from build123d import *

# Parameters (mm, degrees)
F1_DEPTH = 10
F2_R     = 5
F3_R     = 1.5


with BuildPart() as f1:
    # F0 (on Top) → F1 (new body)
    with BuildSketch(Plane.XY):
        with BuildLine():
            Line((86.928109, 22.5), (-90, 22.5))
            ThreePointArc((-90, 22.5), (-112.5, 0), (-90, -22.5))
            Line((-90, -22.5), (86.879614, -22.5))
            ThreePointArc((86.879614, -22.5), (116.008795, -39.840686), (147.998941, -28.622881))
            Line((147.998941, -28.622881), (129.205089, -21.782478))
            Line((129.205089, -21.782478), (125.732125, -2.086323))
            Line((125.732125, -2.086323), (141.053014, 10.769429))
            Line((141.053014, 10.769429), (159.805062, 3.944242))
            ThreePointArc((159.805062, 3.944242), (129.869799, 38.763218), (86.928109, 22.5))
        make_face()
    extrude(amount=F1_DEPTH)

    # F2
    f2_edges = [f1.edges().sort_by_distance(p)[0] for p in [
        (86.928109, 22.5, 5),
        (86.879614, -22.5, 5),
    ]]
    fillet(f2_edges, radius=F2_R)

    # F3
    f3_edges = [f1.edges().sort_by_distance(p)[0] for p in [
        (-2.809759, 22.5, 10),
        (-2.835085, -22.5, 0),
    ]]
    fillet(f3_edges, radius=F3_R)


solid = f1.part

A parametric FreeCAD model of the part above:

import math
import FreeCAD as App
import Part
import Sketcher
from FreeCAD import Vector
Q = App.Units.Quantity


def edges_at(feature, points):
    """Names of the edges that pass closest to the given points."""
    edges = feature.Shape.Edges
    near = lambda p: min(range(len(edges)), key=lambda i: edges[i].distToShape(Part.Vertex(*p))[0])
    return sorted({f"Edge{near(p) + 1}" for p in points})

doc = App.newDocument("Part")
body = doc.addObject("PartDesign::Body", "Body")

# Sketch on XY plane
sketch1 = body.newObject("Sketcher::SketchObject", "Sketch")
sketch1.AttachmentSupport = (doc.getObject("XY_Plane"), [""])
sketch1.MapMode = "FlatFace"
sketch1.addGeometry([
    Part.LineSegment(Vector(86.928109, 22.5, 0), Vector(-90, 22.5, 0)),  # 0
    Part.ArcOfCircle(Part.Circle(Vector(-90, 0, 0), Vector(0, 0, 1), 22.5), math.radians(90), math.radians(270)),  # 1
    Part.LineSegment(Vector(-90, -22.5, 0), Vector(86.879614, -22.5, 0)),  # 2
    Part.ArcOfCircle(Part.Circle(Vector(120, 0, 0), Vector(0, 0, 1), 40.040105), math.radians(-145.810168), math.radians(-45.631342)),  # 3
    Part.LineSegment(Vector(147.998941, -28.622881, 0), Vector(129.205089, -21.782478, 0)),  # 4
    Part.LineSegment(Vector(129.205089, -21.782478, 0), Vector(125.732125, -2.086323, 0)),  # 5
    Part.LineSegment(Vector(125.732125, -2.086323, 0), Vector(141.053014, 10.769429, 0)),  # 6
    Part.LineSegment(Vector(141.053014, 10.769429, 0), Vector(159.805062, 3.944242, 0)),  # 7
    Part.ArcOfCircle(Part.Circle(Vector(120, 0, 0), Vector(0, 0, 1), 40), math.radians(5.658906), math.radians(145.771134)),  # 8
], False)
sketch1.addConstraint([
    Sketcher.Constraint("Tangent", 0, 2, 1, 1),
    Sketcher.Constraint("Tangent", 1, 2, 2, 1),
    Sketcher.Constraint("Coincident", 2, 2, 3, 1),
    Sketcher.Constraint("Coincident", 3, 2, 4, 1),
    Sketcher.Constraint("Coincident", 4, 2, 5, 1),
    Sketcher.Constraint("Coincident", 5, 2, 6, 1),
    Sketcher.Constraint("Coincident", 6, 2, 7, 1),
    Sketcher.Constraint("Coincident", 7, 2, 8, 1),
    Sketcher.Constraint("Coincident", 8, 2, 0, 1),
    Sketcher.Constraint("Horizontal", 0),
    Sketcher.Constraint("Horizontal", 2),
    Sketcher.Constraint("Coincident", 8, 3, 3, 3),
    Sketcher.Constraint("PointOnObject", 1, 3, -1),
    Sketcher.Constraint("PointOnObject", 3, 3, -1),
    Sketcher.Constraint("Parallel", 4, 7),
    Sketcher.Constraint("Equal", 4, 5),
    Sketcher.Constraint("Equal", 5, 6),
    Sketcher.Constraint("Radius", 8, 40.0),
    Sketcher.Constraint("Radius", 1, 22.5),
    Sketcher.Constraint("Angle", 4, Q("159.999999 deg")),
    Sketcher.Constraint("Angle", 5, Q("100.000001 deg")),
    Sketcher.Constraint("Angle", 6, Q("39.999999 deg")),
    Sketcher.Constraint("Distance", 4, 20.0),
    Sketcher.Constraint("DistanceX", 1, 3, -1, 1, 90.0),
    Sketcher.Constraint("DistanceX", -1, 1, 3, 3, 120.0),
    Sketcher.Constraint("Radius", 3, 40.040105),
    Sketcher.Constraint("DistanceX", -1, 1, 3, 2, 147.998941),
])
pad1 = body.newObject("PartDesign::Pad", "Pad")
pad1.Profile = sketch1
pad1.Length = 10
doc.recompute()

fillet = body.newObject("PartDesign::Fillet", "Fillet")
fillet.Base = (pad1, edges_at(pad1, [(86.928, 22.5, 5), (86.88, -22.5, 5)]))
fillet.Radius = 5
doc.recompute()

fillet2 = body.newObject("PartDesign::Fillet", "Fillet001")
fillet2.Base = (fillet, edges_at(fillet, [(-2.81, 22.5, 10), (-2.835, -22.5, 0)]))
fillet2.Radius = 1.5

doc.recompute()
